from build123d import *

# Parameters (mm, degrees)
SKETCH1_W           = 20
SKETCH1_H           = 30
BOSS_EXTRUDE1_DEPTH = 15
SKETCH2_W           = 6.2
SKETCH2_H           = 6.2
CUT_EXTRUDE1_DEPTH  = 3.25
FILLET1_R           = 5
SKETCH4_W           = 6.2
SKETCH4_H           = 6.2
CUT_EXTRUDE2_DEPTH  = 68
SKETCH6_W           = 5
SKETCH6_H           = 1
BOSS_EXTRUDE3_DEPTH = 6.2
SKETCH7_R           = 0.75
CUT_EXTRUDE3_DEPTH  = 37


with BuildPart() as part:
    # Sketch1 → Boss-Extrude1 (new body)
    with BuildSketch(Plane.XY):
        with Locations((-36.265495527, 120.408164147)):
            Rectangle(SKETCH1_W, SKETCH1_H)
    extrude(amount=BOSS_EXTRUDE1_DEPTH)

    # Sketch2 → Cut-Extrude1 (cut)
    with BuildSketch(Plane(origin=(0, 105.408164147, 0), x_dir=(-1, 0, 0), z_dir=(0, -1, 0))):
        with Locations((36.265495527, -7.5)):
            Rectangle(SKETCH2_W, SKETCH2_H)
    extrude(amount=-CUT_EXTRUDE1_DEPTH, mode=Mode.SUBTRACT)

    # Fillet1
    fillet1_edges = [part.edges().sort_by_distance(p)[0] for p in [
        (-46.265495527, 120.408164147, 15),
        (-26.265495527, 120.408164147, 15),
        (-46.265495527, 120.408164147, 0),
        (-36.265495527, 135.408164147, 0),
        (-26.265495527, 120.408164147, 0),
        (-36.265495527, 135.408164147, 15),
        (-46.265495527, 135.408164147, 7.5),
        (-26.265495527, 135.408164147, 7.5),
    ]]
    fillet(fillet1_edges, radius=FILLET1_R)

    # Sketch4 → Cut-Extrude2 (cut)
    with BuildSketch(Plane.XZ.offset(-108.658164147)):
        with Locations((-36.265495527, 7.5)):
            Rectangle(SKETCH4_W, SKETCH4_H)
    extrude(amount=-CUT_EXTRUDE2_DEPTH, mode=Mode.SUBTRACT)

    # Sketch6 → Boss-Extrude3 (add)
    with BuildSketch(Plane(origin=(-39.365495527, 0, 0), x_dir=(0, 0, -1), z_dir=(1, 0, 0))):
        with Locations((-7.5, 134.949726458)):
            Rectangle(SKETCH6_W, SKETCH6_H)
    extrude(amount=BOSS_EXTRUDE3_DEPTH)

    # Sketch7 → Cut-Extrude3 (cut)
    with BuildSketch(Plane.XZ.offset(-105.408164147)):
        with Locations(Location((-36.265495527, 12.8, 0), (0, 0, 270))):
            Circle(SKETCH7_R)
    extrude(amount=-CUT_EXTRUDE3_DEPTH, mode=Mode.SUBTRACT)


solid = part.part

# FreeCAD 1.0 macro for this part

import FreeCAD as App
import Part
import Sketcher
from FreeCAD import Vector
Q = App.Units.Quantity


def edges_at(feature, points):
    """Names of the edges that pass closest to the given points."""
    edges = feature.Shape.Edges
    near = lambda p: min(range(len(edges)), key=lambda i: edges[i].distToShape(Part.Vertex(*p))[0])
    return sorted({f"Edge{near(p) + 1}" for p in points})

doc = App.newDocument("Part")
body = doc.addObject("PartDesign::Body", "Body")

# Sketch on XY plane
sketch1 = doc.addObject("Sketcher::SketchObject", "Sketch")
body.addObject(sketch1)
sketch1.AttachmentSupport = (doc.XY_Plane, [""])
sketch1.MapMode = "FlatFace"
sketch1.addGeometry(Part.LineSegment(Vector(-46.265496, 135.408164, 0), Vector(-46.265496, 105.408164, 0)), False)
sketch1.addGeometry(Part.LineSegment(Vector(-46.265496, 105.408164, 0), Vector(-26.265496, 105.408164, 0)), False)
sketch1.addGeometry(Part.LineSegment(Vector(-26.265496, 105.408164, 0), Vector(-26.265496, 135.408164, 0)), False)
sketch1.addGeometry(Part.LineSegment(Vector(-26.265496, 135.408164, 0), Vector(-46.265496, 135.408164, 0)), False)
sketch1.addConstraint(Sketcher.Constraint("Coincident", 0, 2, 1, 1))
sketch1.addConstraint(Sketcher.Constraint("Coincident", 1, 2, 2, 1))
sketch1.addConstraint(Sketcher.Constraint("Coincident", 2, 2, 3, 1))
sketch1.addConstraint(Sketcher.Constraint("Coincident", 3, 2, 0, 1))
sketch1.addConstraint(Sketcher.Constraint("Vertical", 0))
sketch1.addConstraint(Sketcher.Constraint("Horizontal", 1))
sketch1.addConstraint(Sketcher.Constraint("Vertical", 2))
sketch1.addConstraint(Sketcher.Constraint("Horizontal", 3))
sketch1.addConstraint(Sketcher.Constraint("DistanceX", 1, 1, 1, 2, Q("20 mm")))
sketch1.addConstraint(Sketcher.Constraint("DistanceY", 0, 2, 0, 1, Q("30 mm")))
sketch1.addConstraint(Sketcher.Constraint("DistanceX", 0, 2, -1, 1, Q("46.265496 mm")))
sketch1.addConstraint(Sketcher.Constraint("DistanceY", -1, 1, 0, 2, Q("105.408164 mm")))
pad1 = doc.addObject("PartDesign::Pad", "Pad")
body.addObject(pad1)
pad1.Profile = sketch1
pad1.Length = 15

# Sketch on XZ plane
sketch2 = doc.addObject("Sketcher::SketchObject", "Sketch001")
body.addObject(sketch2)
sketch2.AttachmentSupport = (doc.XZ_Plane, [""])
sketch2.MapMode = "FlatFace"
sketch2.AttachmentOffset = App.Placement(Vector(0, 0, -105.408164), App.Rotation())
sketch2.addGeometry(Part.LineSegment(Vector(-33.165496, 4.4, 0), Vector(-33.165496, 10.6, 0)), False)
sketch2.addGeometry(Part.LineSegment(Vector(-33.165496, 10.6, 0), Vector(-39.365496, 10.6, 0)), False)
sketch2.addGeometry(Part.LineSegment(Vector(-39.365496, 10.6, 0), Vector(-39.365496, 4.4, 0)), False)
sketch2.addGeometry(Part.LineSegment(Vector(-39.365496, 4.4, 0), Vector(-33.165496, 4.4, 0)), False)
sketch2.addConstraint(Sketcher.Constraint("Coincident", 0, 2, 1, 1))
sketch2.addConstraint(Sketcher.Constraint("Coincident", 1, 2, 2, 1))
sketch2.addConstraint(Sketcher.Constraint("Coincident", 2, 2, 3, 1))
sketch2.addConstraint(Sketcher.Constraint("Coincident", 3, 2, 0, 1))
sketch2.addConstraint(Sketcher.Constraint("Vertical", 0))
sketch2.addConstraint(Sketcher.Constraint("Horizontal", 1))
sketch2.addConstraint(Sketcher.Constraint("Vertical", 2))
sketch2.addConstraint(Sketcher.Constraint("Horizontal", 3))
sketch2.addConstraint(Sketcher.Constraint("Equal", 3, 0))
sketch2.addConstraint(Sketcher.Constraint("DistanceX", 1, 2, 1, 1, Q("6.2 mm")))
sketch2.addConstraint(Sketcher.Constraint("DistanceY", -1, 1, 0, 2, Q("10.6 mm")))
sketch2.addConstraint(Sketcher.Constraint("DistanceX", 0, 2, -1, 1, Q("33.165496 mm")))
pocket1 = doc.addObject("PartDesign::Pocket", "Pocket")
body.addObject(pocket1)
pocket1.Profile = sketch2
pocket1.Length = 3.25
doc.recompute()

fillet = doc.addObject("PartDesign::Fillet", "Fillet")
body.addObject(fillet)
fillet.Base = (pocket1, edges_at(pocket1, [
    (-46.265, 120.408, 15),
    (-26.265, 120.408, 15),
    (-46.265, 120.408, 0),
    (-36.265, 135.408, 0),
    (-26.265, 120.408, 0),
    (-36.265, 135.408, 15),
    (-46.265, 135.408, 7.5),
    (-26.265, 135.408, 7.5),
]))
fillet.Radius = 5

# Sketch on XZ plane
sketch3 = doc.addObject("Sketcher::SketchObject", "Sketch002")
body.addObject(sketch3)
sketch3.AttachmentSupport = (doc.XZ_Plane, [""])
sketch3.MapMode = "FlatFace"
sketch3.AttachmentOffset = App.Placement(Vector(0, 0, -108.658164), App.Rotation())
sketch3.addGeometry(Part.LineSegment(Vector(-39.365496, 10.6, 0), Vector(-39.365496, 4.4, 0)), False)
sketch3.addGeometry(Part.LineSegment(Vector(-39.365496, 4.4, 0), Vector(-33.165496, 4.4, 0)), False)
sketch3.addGeometry(Part.LineSegment(Vector(-33.165496, 4.4, 0), Vector(-33.165496, 10.6, 0)), False)
sketch3.addGeometry(Part.LineSegment(Vector(-33.165496, 10.6, 0), Vector(-39.365496, 10.6, 0)), False)
sketch3.addConstraint(Sketcher.Constraint("Coincident", 0, 2, 1, 1))
sketch3.addConstraint(Sketcher.Constraint("Coincident", 1, 2, 2, 1))
sketch3.addConstraint(Sketcher.Constraint("Coincident", 2, 2, 3, 1))
sketch3.addConstraint(Sketcher.Constraint("Coincident", 3, 2, 0, 1))
sketch3.addConstraint(Sketcher.Constraint("Vertical", 0))
sketch3.addConstraint(Sketcher.Constraint("Horizontal", 1))
sketch3.addConstraint(Sketcher.Constraint("Vertical", 2))
sketch3.addConstraint(Sketcher.Constraint("Horizontal", 3))
sketch3.addConstraint(Sketcher.Constraint("Equal", 3, 0))
sketch3.addConstraint(Sketcher.Constraint("DistanceX", 1, 1, 1, 2, Q("6.2 mm")))
sketch3.addConstraint(Sketcher.Constraint("DistanceY", -1, 1, 0, 2, Q("4.4 mm")))
sketch3.addConstraint(Sketcher.Constraint("DistanceX", 0, 2, -1, 1, Q("39.365496 mm")))
pocket2 = doc.addObject("PartDesign::Pocket", "Pocket001")
body.addObject(pocket2)
pocket2.Profile = sketch3
pocket2.Length = 68

# Sketch on YZ plane
sketch4 = doc.addObject("Sketcher::SketchObject", "Sketch003")
body.addObject(sketch4)
sketch4.AttachmentSupport = (doc.YZ_Plane, [""])
sketch4.MapMode = "FlatFace"
sketch4.AttachmentOffset = App.Placement(Vector(0, 0, -39.365496), App.Rotation())
sketch4.addGeometry(Part.LineSegment(Vector(135.449726, 10, 0), Vector(134.449726, 10, 0)), False)
sketch4.addGeometry(Part.LineSegment(Vector(134.449726, 10, 0), Vector(134.449726, 5, 0)), False)
sketch4.addGeometry(Part.LineSegment(Vector(134.449726, 5, 0), Vector(135.449726, 5, 0)), False)
sketch4.addGeometry(Part.LineSegment(Vector(135.449726, 5, 0), Vector(135.449726, 10, 0)), False)
sketch4.addConstraint(Sketcher.Constraint("Coincident", 0, 2, 1, 1))
sketch4.addConstraint(Sketcher.Constraint("Coincident", 1, 2, 2, 1))
sketch4.addConstraint(Sketcher.Constraint("Coincident", 2, 2, 3, 1))
sketch4.addConstraint(Sketcher.Constraint("Coincident", 3, 2, 0, 1))
sketch4.addConstraint(Sketcher.Constraint("Horizontal", 0))
sketch4.addConstraint(Sketcher.Constraint("Vertical", 1))
sketch4.addConstraint(Sketcher.Constraint("Horizontal", 2))
sketch4.addConstraint(Sketcher.Constraint("Vertical", 3))
sketch4.addConstraint(Sketcher.Constraint("DistanceX", 0, 2, 0, 1, Q("1 mm")))
sketch4.addConstraint(Sketcher.Constraint("DistanceY", 1, 2, 1, 1, Q("5 mm")))
sketch4.addConstraint(Sketcher.Constraint("DistanceY", -1, 1, 0, 2, Q("10 mm")))
sketch4.addConstraint(Sketcher.Constraint("DistanceX", -1, 1, 0, 2, Q("134.449726 mm")))
pad2 = doc.addObject("PartDesign::Pad", "Pad001")
body.addObject(pad2)
pad2.Profile = sketch4
pad2.Length = 6.2

# Sketch on XZ plane
sketch5 = doc.addObject("Sketcher::SketchObject", "Sketch004")
body.addObject(sketch5)
sketch5.AttachmentSupport = (doc.XZ_Plane, [""])
sketch5.MapMode = "FlatFace"
sketch5.AttachmentOffset = App.Placement(Vector(0, 0, -105.408164), App.Rotation())
sketch5.addGeometry(Part.Circle(Vector(-36.265496, 12.8, 0), Vector(0, 0, 1), 0.75), False)
sketch5.addConstraint(Sketcher.Constraint("Diameter", 0, Q("1.5 mm")))
sketch5.addConstraint(Sketcher.Constraint("DistanceY", -1, 1, 0, 3, Q("12.8 mm")))
sketch5.addConstraint(Sketcher.Constraint("DistanceX", 0, 3, -1, 1, Q("36.265496 mm")))
pocket3 = doc.addObject("PartDesign::Pocket", "Pocket002")
body.addObject(pocket3)
pocket3.Profile = sketch5
pocket3.Length = 37

doc.recompute()
